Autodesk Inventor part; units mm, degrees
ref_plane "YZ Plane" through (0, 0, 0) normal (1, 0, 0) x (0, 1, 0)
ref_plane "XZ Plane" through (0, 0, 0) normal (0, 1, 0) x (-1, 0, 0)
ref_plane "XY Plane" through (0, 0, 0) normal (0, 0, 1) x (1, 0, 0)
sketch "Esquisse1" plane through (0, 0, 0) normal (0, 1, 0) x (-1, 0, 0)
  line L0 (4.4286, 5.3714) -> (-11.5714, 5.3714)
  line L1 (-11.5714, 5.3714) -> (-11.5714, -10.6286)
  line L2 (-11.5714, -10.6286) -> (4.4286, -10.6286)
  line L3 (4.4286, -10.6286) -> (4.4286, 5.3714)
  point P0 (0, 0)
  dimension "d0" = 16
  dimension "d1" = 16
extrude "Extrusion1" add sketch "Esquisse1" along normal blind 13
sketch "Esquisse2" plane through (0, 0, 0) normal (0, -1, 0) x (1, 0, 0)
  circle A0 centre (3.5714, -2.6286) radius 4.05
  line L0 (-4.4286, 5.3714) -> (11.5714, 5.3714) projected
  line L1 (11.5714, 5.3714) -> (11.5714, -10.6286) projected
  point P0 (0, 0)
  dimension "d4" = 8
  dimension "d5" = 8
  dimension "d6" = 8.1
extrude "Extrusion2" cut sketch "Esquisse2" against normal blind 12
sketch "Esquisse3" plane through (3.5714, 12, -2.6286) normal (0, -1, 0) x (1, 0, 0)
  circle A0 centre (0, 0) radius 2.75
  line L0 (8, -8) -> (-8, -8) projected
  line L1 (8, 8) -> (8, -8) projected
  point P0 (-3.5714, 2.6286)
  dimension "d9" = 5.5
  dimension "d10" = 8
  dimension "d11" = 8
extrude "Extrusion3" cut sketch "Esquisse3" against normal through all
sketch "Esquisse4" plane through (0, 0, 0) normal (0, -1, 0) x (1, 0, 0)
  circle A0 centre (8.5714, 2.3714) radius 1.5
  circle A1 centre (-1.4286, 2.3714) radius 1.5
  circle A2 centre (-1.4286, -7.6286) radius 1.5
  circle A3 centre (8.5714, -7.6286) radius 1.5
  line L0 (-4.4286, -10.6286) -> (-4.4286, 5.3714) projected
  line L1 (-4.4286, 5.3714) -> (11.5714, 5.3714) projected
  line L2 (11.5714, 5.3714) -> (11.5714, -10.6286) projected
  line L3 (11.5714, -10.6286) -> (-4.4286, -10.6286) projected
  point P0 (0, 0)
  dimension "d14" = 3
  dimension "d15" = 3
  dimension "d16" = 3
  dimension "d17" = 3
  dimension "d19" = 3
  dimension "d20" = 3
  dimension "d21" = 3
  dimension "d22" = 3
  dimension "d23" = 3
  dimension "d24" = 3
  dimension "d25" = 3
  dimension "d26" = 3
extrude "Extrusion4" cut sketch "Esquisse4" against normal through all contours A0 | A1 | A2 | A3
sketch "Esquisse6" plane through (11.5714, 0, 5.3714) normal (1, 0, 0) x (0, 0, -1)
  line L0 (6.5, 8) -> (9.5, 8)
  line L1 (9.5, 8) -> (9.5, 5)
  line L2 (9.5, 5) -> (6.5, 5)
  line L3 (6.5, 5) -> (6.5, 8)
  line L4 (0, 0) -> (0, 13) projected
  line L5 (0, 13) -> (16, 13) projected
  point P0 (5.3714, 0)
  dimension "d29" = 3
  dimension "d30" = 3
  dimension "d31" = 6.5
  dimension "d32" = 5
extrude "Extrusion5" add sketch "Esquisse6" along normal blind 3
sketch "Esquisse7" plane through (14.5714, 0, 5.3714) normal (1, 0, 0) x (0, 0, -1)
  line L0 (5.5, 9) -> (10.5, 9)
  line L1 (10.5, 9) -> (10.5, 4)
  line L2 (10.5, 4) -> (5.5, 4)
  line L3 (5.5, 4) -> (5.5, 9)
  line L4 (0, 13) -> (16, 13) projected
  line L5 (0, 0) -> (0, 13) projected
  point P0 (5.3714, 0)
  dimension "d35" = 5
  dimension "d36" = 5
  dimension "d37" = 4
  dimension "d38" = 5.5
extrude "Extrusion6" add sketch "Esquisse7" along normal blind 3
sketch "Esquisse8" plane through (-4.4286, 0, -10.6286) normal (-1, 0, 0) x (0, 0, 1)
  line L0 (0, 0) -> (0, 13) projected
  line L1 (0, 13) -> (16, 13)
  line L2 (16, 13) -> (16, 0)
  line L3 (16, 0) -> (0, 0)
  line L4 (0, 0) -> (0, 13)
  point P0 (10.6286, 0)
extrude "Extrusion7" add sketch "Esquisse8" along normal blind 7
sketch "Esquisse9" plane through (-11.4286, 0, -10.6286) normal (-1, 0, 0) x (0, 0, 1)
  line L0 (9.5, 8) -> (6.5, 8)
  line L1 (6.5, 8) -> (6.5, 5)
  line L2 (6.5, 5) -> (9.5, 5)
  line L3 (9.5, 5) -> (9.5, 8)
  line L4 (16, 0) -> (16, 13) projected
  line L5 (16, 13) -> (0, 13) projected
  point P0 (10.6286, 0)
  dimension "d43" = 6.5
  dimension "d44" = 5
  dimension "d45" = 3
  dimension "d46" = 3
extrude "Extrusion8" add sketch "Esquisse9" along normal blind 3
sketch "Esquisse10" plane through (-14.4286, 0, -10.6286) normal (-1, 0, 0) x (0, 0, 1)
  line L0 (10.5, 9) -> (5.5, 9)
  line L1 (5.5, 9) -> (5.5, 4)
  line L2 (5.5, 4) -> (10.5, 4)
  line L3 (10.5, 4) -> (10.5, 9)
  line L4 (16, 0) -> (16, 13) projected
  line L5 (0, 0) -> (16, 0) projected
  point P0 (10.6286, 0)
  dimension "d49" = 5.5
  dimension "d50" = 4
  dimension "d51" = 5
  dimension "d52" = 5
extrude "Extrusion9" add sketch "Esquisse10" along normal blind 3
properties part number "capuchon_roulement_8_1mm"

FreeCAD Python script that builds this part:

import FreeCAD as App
import Part
import Sketcher

V = App.Vector
Q = App.Units.Quantity


def add_polygon(sketch, points):
    """Adds a closed chain of lines whose ends are joined by coincident constraints."""
    first, n = sketch.GeometryCount, len(points)
    for a, b in zip(points, points[1:] + points[:1]):
        sketch.addGeometry(Part.LineSegment(App.Vector(*a, 0), App.Vector(*b, 0)), False)
    for i in range(n):
        sketch.addConstraint(Sketcher.Constraint("Coincident", first + i, 2, first + (i + 1) % n, 1))

doc = App.newDocument("Part")
params = doc.addObject("Spreadsheet::Sheet", "Params")
for row, (alias, value) in enumerate([
    ("sketch1_width", "16 mm"),
    ("pad1_length", "13 mm"),
    ("sketch2_diameter", "8.1 mm"),
    ("pocket1_length", "12 mm"),
    ("sketch3_diameter", "5.5 mm"),
    ("sketch4_diameter", "3 mm"),
    ("sketch5_width", "3 mm"),
    ("pad2_length", "3 mm"),
    ("sketch6_width", "5 mm"),
    ("pad3_length", "3 mm"),
    ("sketch7_width", "13 mm"),
    ("sketch7_height", "16 mm"),
    ("pad4_length", "7 mm"),
    ("sketch8_width", "3 mm"),
    ("pad5_length", "3 mm"),
    ("sketch9_width", "5 mm"),
    ("pad6_length", "3 mm"),
], start=1):
    params.set(f"A{row}", alias)
    params.set(f"B{row}", "=" + value)
    params.setAlias(f"B{row}", alias)

body = doc.addObject("PartDesign::Body", "Body")

# Sketch on XZ plane
sketch1 = body.newObject("Sketcher::SketchObject", "Sketch")
sketch1.AttachmentSupport = (doc.getObject("XZ_Plane"), [""])
sketch1.MapMode = "FlatFace"
add_polygon(sketch1, [(-4, -11), (-4, 5), (12, 5), (12, -11)])  # lines 0-3
sketch1.addConstraint([
    Sketcher.Constraint("Vertical", 0),
    Sketcher.Constraint("Horizontal", 1),
    Sketcher.Constraint("Vertical", 2),
    Sketcher.Constraint("Horizontal", 3),
    Sketcher.Constraint("Equal", 3, 0),
    Sketcher.Constraint("DistanceX", 1, 1, 1, 2, Q("16 mm")),
    Sketcher.Constraint("DistanceX", 0, 2, -1, 1, Q("4.4286 mm")),
    Sketcher.Constraint("DistanceY", -1, 1, 0, 2, Q("5.3714 mm")),
])
sketch1.setExpression("Constraints[9]", "Params.sketch1_width")
pad1 = body.newObject("PartDesign::Pad", "Pad")
pad1.Profile = sketch1
pad1.setExpression("Length", "Params.pad1_length")
pad1.Reversed = True

# Sketch on XZ plane
sketch2 = body.newObject("Sketcher::SketchObject", "Sketch001")
sketch2.AttachmentSupport = (doc.getObject("XZ_Plane"), [""])
sketch2.MapMode = "FlatFace"
sketch2.addGeometry(Part.Circle(V(3.6, -2.6, 0), V(0, 0, 1), 4), False)
sketch2.addConstraint([
    Sketcher.Constraint("Diameter", 0, Q("8.1 mm")),
    Sketcher.Constraint("DistanceX", -1, 1, 0, 3, Q("3.5714 mm")),
    Sketcher.Constraint("DistanceY", 0, 3, -1, 1, Q("2.6286 mm")),
])
sketch2.setExpression("Constraints[0]", "Params.sketch2_diameter")
pocket1 = body.newObject("PartDesign::Pocket", "Pocket")
pocket1.Profile = sketch2
pocket1.setExpression("Length", "Params.pocket1_length")

# Sketch on XZ plane
sketch3 = body.newObject("Sketcher::SketchObject", "Sketch002")
sketch3.AttachmentSupport = (doc.getObject("XZ_Plane"), [""])
sketch3.MapMode = "FlatFace"
sketch3.AttachmentOffset = App.Placement(V(0, 0, -12), App.Rotation())
sketch3.addGeometry(Part.Circle(V(3.6, -2.6, 0), V(0, 0, 1), 2.8), False)
sketch3.addConstraint([
    Sketcher.Constraint("Diameter", 0, Q("5.5 mm")),
    Sketcher.Constraint("DistanceX", -1, 1, 0, 3, Q("3.5714 mm")),
    Sketcher.Constraint("DistanceY", 0, 3, -1, 1, Q("2.6286 mm")),
])
sketch3.setExpression("Constraints[0]", "Params.sketch3_diameter")
pocket2 = body.newObject("PartDesign::Pocket", "Pocket001")
pocket2.Profile = sketch3
pocket2.Type = "ThroughAll"

# Sketch on XZ plane
sketch4 = body.newObject("Sketcher::SketchObject", "Sketch003")
sketch4.AttachmentSupport = (doc.getObject("XZ_Plane"), [""])
sketch4.MapMode = "FlatFace"
sketch4.addGeometry([
    Part.Circle(V(8.6, 2.4, 0), V(0, 0, 1), 1.5),
    Part.Circle(V(-1.4, 2.4, 0), V(0, 0, 1), 1.5),
    Part.Circle(V(-1.4, -7.6, 0), V(0, 0, 1), 1.5),
    Part.Circle(V(8.6, -7.6, 0), V(0, 0, 1), 1.5),
], False)
sketch4.addConstraint([
    Sketcher.Constraint("Equal", 0, 1),
    Sketcher.Constraint("Equal", 1, 2),
    Sketcher.Constraint("Equal", 2, 3),
    Sketcher.Constraint("Horizontal", 0, 3, 1, 3),
    Sketcher.Constraint("Horizontal", 2, 3, 3, 3),
    Sketcher.Constraint("Vertical", 1, 3, 2, 3),
    Sketcher.Constraint("Vertical", 0, 3, 3, 3),
    Sketcher.Constraint("Diameter", 0, Q("3 mm")),
    Sketcher.Constraint("DistanceX", 1, 3, 0, 3, Q("10 mm")),
    Sketcher.Constraint("DistanceY", 2, 3, 1, 3, Q("10 mm")),
    Sketcher.Constraint("DistanceX", -1, 1, 0, 3, Q("8.5714 mm")),
    Sketcher.Constraint("DistanceY", -1, 1, 0, 3, Q("2.3714 mm")),
])
sketch4.setExpression("Constraints[7]", "Params.sketch4_diameter")
pocket3 = body.newObject("PartDesign::Pocket", "Pocket002")
pocket3.Profile = sketch4
pocket3.Type = "ThroughAll"

# Sketch on YZ plane
sketch5 = body.newObject("Sketcher::SketchObject", "Sketch004")
sketch5.AttachmentSupport = (doc.getObject("YZ_Plane"), [""])
sketch5.MapMode = "FlatFace"
sketch5.AttachmentOffset = App.Placement(V(0, 0, 11.5714), App.Rotation())
add_polygon(sketch5, [(8, -4.1), (8, -1.1), (5, -1.1), (5, -4.1)])  # lines 0-3
sketch5.addConstraint([
    Sketcher.Constraint("Vertical", 0),
    Sketcher.Constraint("Horizontal", 1),
    Sketcher.Constraint("Vertical", 2),
    Sketcher.Constraint("Horizontal", 3),
    Sketcher.Constraint("Equal", 3, 0),
    Sketcher.Constraint("DistanceX", 1, 2, 1, 1, Q("3 mm")),
    Sketcher.Constraint("DistanceX", -1, 1, 1, 2, Q("5 mm")),
    Sketcher.Constraint("DistanceY", 0, 2, -1, 1, Q("1.1286 mm")),
])
sketch5.setExpression("Constraints[9]", "Params.sketch5_width")
pad2 = body.newObject("PartDesign::Pad", "Pad001")
pad2.Profile = sketch5
pad2.setExpression("Length", "Params.pad2_length")

# Sketch on YZ plane
sketch6 = body.newObject("Sketcher::SketchObject", "Sketch005")
sketch6.AttachmentSupport = (doc.getObject("YZ_Plane"), [""])
sketch6.MapMode = "FlatFace"
sketch6.AttachmentOffset = App.Placement(V(0, 0, 14.5714), App.Rotation())
add_polygon(sketch6, [(9, -5), (9, 0), (4, 0), (4, -5)])  # lines 0-3
sketch6.addConstraint([
    Sketcher.Constraint("Vertical", 0),
    Sketcher.Constraint("Horizontal", 1),
    Sketcher.Constraint("Vertical", 2),
    Sketcher.Constraint("Horizontal", 3),
    Sketcher.Constraint("Equal", 3, 0),
    Sketcher.Constraint("DistanceX", 1, 2, 1, 1, Q("5 mm")),
    Sketcher.Constraint("DistanceX", -1, 1, 1, 2, Q("4 mm")),
    Sketcher.Constraint("DistanceY", 0, 2, -1, 1, Q("0.1286 mm")),
])
sketch6.setExpression("Constraints[9]", "Params.sketch6_width")
pad3 = body.newObject("PartDesign::Pad", "Pad002")
pad3.Profile = sketch6
pad3.setExpression("Length", "Params.pad3_length")

# Sketch on YZ plane
sketch7 = body.newObject("Sketcher::SketchObject", "Sketch006")
sketch7.AttachmentSupport = (doc.getObject("YZ_Plane"), [""])
sketch7.MapMode = "FlatFace"
sketch7.AttachmentOffset = App.Placement(V(0, 0, -4.4286), App.Rotation())
add_polygon(sketch7, [(13, -11), (0, -11), (0, 5), (13, 5)])  # lines 0-3
sketch7.addConstraint([
    Sketcher.Constraint("Horizontal", 0),
    Sketcher.Constraint("Vertical", 1),
    Sketcher.Constraint("Horizontal", 2),
    Sketcher.Constraint("Vertical", 3),
    Sketcher.Constraint("PointOnObject", 0, 2, -2),
    Sketcher.Constraint("DistanceX", 0, 2, 0, 1, Q("13 mm")),
    Sketcher.Constraint("DistanceY", 1, 1, 1, 2, Q("16 mm")),
    Sketcher.Constraint("DistanceY", 0, 2, -1, 1, Q("10.6286 mm")),
])
sketch7.setExpression("Constraints[9]", "Params.sketch7_width")
sketch7.setExpression("Constraints[10]", "Params.sketch7_height")
pad4 = body.newObject("PartDesign::Pad", "Pad003")
pad4.Profile = sketch7
pad4.setExpression("Length", "Params.pad4_length")
pad4.Reversed = True

# Sketch on YZ plane
sketch8 = body.newObject("Sketcher::SketchObject", "Sketch007")
sketch8.AttachmentSupport = (doc.getObject("YZ_Plane"), [""])
sketch8.MapMode = "FlatFace"
sketch8.AttachmentOffset = App.Placement(V(0, 0, -11.4286), App.Rotation())
add_polygon(sketch8, [(5, -1.1), (8, -1.1), (8, -4.1), (5, -4.1)])  # lines 0-3
sketch8.addConstraint([
    Sketcher.Constraint("Horizontal", 0),
    Sketcher.Constraint("Vertical", 1),
    Sketcher.Constraint("Horizontal", 2),
    Sketcher.Constraint("Vertical", 3),
    Sketcher.Constraint("Equal", 2, 1),
    Sketcher.Constraint("DistanceX", 0, 1, 0, 2, Q("3 mm")),
    Sketcher.Constraint("DistanceX", -1, 1, 2, 2, Q("5 mm")),
    Sketcher.Constraint("DistanceY", 0, 2, -1, 1, Q("1.1286 mm")),
])
sketch8.setExpression("Constraints[9]", "Params.sketch8_width")
pad5 = body.newObject("PartDesign::Pad", "Pad004")
pad5.Profile = sketch8
pad5.setExpression("Length", "Params.pad5_length")
pad5.Reversed = True

# Sketch on YZ plane
sketch9 = body.newObject("Sketcher::SketchObject", "Sketch008")
sketch9.AttachmentSupport = (doc.getObject("YZ_Plane"), [""])
sketch9.MapMode = "FlatFace"
sketch9.AttachmentOffset = App.Placement(V(0, 0, -14.4286), App.Rotation())
add_polygon(sketch9, [(4, 0), (9, 0), (9, -5), (4, -5)])  # lines 0-3
sketch9.addConstraint([
    Sketcher.Constraint("Horizontal", 0),
    Sketcher.Constraint("Vertical", 1),
    Sketcher.Constraint("Horizontal", 2),
    Sketcher.Constraint("Vertical", 3),
    Sketcher.Constraint("Equal", 2, 1),
    Sketcher.Constraint("DistanceX", 0, 1, 0, 2, Q("5 mm")),
    Sketcher.Constraint("DistanceX", -1, 1, 2, 2, Q("4 mm")),
    Sketcher.Constraint("DistanceY", 0, 2, -1, 1, Q("0.1286 mm")),
])
sketch9.setExpression("Constraints[9]", "Params.sketch9_width")
pad6 = body.newObject("PartDesign::Pad", "Pad005")
pad6.Profile = sketch9
pad6.setExpression("Length", "Params.pad6_length")
pad6.Reversed = True

doc.recompute()
